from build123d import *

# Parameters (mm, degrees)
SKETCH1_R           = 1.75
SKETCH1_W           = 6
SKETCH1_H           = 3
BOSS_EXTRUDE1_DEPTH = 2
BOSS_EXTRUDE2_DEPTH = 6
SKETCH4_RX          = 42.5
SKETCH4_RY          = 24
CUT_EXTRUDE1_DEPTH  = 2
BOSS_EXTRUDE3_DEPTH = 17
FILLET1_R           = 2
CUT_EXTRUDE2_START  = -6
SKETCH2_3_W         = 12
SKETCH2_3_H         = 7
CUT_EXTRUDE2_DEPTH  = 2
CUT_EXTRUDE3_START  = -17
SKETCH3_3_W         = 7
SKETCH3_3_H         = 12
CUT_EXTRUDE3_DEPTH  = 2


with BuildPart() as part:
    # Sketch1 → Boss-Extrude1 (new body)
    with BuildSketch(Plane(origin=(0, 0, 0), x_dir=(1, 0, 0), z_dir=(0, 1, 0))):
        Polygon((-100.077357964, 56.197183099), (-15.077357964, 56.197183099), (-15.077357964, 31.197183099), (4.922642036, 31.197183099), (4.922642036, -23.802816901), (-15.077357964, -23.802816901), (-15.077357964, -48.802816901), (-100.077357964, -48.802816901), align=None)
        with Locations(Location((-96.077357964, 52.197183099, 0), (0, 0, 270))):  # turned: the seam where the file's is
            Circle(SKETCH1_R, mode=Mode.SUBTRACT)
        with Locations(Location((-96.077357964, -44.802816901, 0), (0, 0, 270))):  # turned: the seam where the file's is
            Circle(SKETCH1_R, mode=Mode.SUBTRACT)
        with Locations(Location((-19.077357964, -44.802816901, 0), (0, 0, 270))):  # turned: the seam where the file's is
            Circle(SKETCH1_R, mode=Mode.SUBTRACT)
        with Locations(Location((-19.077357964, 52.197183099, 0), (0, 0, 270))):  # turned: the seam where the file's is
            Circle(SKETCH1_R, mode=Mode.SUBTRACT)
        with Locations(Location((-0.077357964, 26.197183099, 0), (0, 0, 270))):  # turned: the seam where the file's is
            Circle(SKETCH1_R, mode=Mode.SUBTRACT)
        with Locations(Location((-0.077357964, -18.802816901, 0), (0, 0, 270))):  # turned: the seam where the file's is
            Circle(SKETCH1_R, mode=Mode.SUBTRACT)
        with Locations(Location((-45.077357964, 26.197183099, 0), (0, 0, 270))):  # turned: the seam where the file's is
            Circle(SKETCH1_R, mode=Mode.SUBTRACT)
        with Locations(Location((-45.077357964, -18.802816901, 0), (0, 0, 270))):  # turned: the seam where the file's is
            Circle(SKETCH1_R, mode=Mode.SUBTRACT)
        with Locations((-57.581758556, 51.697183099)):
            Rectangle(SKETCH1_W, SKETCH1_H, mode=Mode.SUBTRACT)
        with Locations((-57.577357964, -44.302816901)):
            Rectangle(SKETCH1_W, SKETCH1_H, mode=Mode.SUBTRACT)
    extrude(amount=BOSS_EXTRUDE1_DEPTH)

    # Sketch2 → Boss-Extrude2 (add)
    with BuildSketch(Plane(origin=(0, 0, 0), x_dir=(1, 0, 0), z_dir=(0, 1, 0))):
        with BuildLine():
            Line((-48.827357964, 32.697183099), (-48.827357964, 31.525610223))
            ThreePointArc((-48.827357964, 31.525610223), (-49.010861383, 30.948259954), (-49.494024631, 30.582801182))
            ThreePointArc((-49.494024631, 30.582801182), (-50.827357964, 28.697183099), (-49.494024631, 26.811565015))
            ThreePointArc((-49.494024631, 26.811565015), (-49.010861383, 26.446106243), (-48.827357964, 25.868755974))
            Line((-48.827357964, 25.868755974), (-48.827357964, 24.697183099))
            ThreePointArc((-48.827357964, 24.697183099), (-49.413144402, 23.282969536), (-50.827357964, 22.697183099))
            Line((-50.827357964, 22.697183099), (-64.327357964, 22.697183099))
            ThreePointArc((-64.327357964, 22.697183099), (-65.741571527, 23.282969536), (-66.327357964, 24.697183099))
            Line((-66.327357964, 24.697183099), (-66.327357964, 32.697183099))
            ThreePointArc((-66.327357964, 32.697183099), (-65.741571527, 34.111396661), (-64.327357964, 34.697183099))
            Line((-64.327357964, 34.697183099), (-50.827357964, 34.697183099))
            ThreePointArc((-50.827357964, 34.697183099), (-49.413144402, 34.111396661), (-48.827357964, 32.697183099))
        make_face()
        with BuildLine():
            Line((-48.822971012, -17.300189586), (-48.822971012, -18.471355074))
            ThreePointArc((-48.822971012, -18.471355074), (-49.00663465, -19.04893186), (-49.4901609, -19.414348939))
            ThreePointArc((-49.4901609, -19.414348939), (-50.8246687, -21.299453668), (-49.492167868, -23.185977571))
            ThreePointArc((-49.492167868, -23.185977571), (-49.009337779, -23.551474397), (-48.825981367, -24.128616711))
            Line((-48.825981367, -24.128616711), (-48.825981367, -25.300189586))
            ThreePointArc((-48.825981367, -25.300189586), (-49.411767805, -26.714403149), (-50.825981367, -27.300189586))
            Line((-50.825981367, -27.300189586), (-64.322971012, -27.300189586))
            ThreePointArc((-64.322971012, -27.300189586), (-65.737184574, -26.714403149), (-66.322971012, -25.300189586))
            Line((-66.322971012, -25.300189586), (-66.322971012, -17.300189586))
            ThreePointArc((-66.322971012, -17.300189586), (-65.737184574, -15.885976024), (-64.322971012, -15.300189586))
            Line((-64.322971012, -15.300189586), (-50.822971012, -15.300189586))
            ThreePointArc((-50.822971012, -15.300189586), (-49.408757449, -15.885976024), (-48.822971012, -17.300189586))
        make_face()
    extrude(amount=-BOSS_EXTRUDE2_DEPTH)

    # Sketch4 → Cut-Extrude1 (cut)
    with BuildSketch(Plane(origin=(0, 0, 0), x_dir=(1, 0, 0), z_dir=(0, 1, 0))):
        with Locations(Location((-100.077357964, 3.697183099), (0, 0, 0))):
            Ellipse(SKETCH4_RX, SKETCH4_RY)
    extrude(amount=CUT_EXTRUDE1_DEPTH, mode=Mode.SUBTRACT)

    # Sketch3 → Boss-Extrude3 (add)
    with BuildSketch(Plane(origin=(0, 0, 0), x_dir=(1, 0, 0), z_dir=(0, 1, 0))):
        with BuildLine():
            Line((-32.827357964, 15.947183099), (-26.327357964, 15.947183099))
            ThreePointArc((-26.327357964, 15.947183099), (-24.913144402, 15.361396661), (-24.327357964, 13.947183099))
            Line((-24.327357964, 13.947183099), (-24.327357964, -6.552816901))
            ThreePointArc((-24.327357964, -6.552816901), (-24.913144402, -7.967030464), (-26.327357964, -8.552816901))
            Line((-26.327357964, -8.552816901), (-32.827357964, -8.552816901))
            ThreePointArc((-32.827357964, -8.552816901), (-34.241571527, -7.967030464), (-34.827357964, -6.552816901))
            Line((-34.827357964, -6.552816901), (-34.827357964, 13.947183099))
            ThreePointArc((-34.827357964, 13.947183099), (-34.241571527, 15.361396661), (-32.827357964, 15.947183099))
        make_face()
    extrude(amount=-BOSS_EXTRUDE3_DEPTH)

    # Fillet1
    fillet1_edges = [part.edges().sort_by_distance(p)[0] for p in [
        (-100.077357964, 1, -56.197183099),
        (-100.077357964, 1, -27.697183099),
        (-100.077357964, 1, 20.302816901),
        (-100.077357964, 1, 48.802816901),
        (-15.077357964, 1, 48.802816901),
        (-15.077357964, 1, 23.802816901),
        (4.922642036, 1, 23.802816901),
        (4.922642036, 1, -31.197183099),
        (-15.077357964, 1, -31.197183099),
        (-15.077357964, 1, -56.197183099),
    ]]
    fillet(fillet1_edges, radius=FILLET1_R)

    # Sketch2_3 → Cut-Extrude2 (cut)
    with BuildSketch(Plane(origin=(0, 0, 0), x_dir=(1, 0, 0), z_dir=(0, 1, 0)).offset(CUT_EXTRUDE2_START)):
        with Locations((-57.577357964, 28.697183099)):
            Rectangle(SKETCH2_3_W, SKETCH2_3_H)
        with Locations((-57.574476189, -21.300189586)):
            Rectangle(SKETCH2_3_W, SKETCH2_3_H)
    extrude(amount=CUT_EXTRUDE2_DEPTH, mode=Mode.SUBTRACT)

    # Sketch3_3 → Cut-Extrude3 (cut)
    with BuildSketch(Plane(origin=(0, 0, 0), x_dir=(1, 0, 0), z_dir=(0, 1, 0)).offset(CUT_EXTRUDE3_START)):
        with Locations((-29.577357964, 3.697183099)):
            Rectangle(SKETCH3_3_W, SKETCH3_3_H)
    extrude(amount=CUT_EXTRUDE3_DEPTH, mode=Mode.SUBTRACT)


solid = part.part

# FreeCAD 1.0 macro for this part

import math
import FreeCAD as App
import Part
import Sketcher
from FreeCAD import Vector
Q = App.Units.Quantity


def edges_at(feature, points):
    """Names of the edges that pass closest to the given points."""
    edges = feature.Shape.Edges
    near = lambda p: min(range(len(edges)), key=lambda i: edges[i].distToShape(Part.Vertex(*p))[0])
    return sorted({f"Edge{near(p) + 1}" for p in points})


def add_polygon(sketch, points):
    """Adds a closed chain of lines whose ends are joined by coincident constraints."""
    first, n = sketch.GeometryCount, len(points)
    for a, b in zip(points, points[1:] + points[:1]):
        sketch.addGeometry(Part.LineSegment(App.Vector(*a, 0), App.Vector(*b, 0)), False)
    for i in range(n):
        sketch.addConstraint(Sketcher.Constraint("Coincident", first + i, 2, first + (i + 1) % n, 1))

doc = App.newDocument("Part")
params = doc.addObject("Spreadsheet::Sheet", "Params")
for row, (alias, value) in enumerate([
    ("sketch1_diameter", "3.5 mm"),
    ("sketch1_width", "85 mm"),
    ("sketch1_width2", "20 mm"),
    ("sketch1_width3", "6 mm"),
    ("sketch1_height", "105 mm"),
    ("pad1_length", "2 mm"),
    ("sketch2_radius", "2 mm"),
    ("sketch2_radius2", "1 mm"),
    ("sketch2_height", "8 mm"),
    ("sketch2_width", "13.5 mm"),
    ("pad2_length", "6 mm"),
    ("pocket1_length", "2 mm"),
    ("sketch4_radius", "2 mm"),
    ("sketch4_width", "6.5 mm"),
    ("sketch4_height", "20.5 mm"),
    ("pad3_length", "17 mm"),
    ("fillet_radius", "2 mm"),
    ("sketch5_width", "12 mm"),
    ("sketch5_height", "7 mm"),
    ("pocket2_length", "2 mm"),
    ("sketch6_width", "7 mm"),
    ("sketch6_height", "12 mm"),
    ("pocket3_length", "2 mm"),
], start=1):
    params.set(f"A{row}", alias)
    params.set(f"B{row}", "=" + value)
    params.setAlias(f"B{row}", alias)

body = doc.addObject("PartDesign::Body", "Body")

# Sketch on XZ plane
sketch1 = body.newObject("Sketcher::SketchObject", "Sketch")
sketch1.AttachmentSupport = (doc.getObject("XZ_Plane"), [""])
sketch1.MapMode = "FlatFace"
add_polygon(sketch1, [(-15.077358, -56.197183), (-100.077358, -56.197183), (-100.077358, 48.802817), (-15.077358, 48.802817), (-15.077358, 23.802817), (4.922642, 23.802817), (4.922642, -31.197183), (-15.077358, -31.197183)])  # lines 0-7
sketch1.addGeometry(Part.Circle(Vector(-19.077358, 44.802817, 0), Vector(0, 0, 1), 1.75), False)  # 8
sketch1.addGeometry(Part.Circle(Vector(-0.077358, 18.802817, 0), Vector(0, 0, 1), 1.75), False)  # 9
sketch1.addGeometry(Part.Circle(Vector(-45.077358, 18.802817, 0), Vector(0, 0, 1), 1.75), False)  # 10
add_polygon(sketch1, [(-60.577358, 45.802817), (-60.577358, 42.802817), (-54.577358, 42.802817), (-54.577358, 45.802817)])  # lines 11-14
sketch1.addGeometry(Part.Circle(Vector(-96.077358, 44.802817, 0), Vector(0, 0, 1), 1.75), False)  # 15
sketch1.addGeometry(Part.Circle(Vector(-0.077358, -26.197183, 0), Vector(0, 0, 1), 1.75), False)  # 16
sketch1.addGeometry(Part.Circle(Vector(-45.077358, -26.197183, 0), Vector(0, 0, 1), 1.75), False)  # 17
sketch1.addGeometry(Part.Circle(Vector(-19.077358, -52.197183, 0), Vector(0, 0, 1), 1.75), False)  # 18
add_polygon(sketch1, [(-60.581759, -50.197183), (-60.581759, -53.197183), (-54.581759, -53.197183), (-54.581759, -50.197183)])  # lines 19-22
sketch1.addGeometry(Part.Circle(Vector(-96.077358, -52.197183, 0), Vector(0, 0, 1), 1.75), False)  # 23
sketch1.addConstraint(Sketcher.Constraint("Horizontal", 0))
sketch1.addConstraint(Sketcher.Constraint("Vertical", 1))
sketch1.addConstraint(Sketcher.Constraint("Horizontal", 2))
sketch1.addConstraint(Sketcher.Constraint("Vertical", 3))
sketch1.addConstraint(Sketcher.Constraint("Horizontal", 4))
sketch1.addConstraint(Sketcher.Constraint("Vertical", 5))
sketch1.addConstraint(Sketcher.Constraint("Horizontal", 6))
sketch1.addConstraint(Sketcher.Constraint("Vertical", 7))
sketch1.addConstraint(Sketcher.Constraint("Vertical", 11))
sketch1.addConstraint(Sketcher.Constraint("Horizontal", 12))
sketch1.addConstraint(Sketcher.Constraint("Vertical", 13))
sketch1.addConstraint(Sketcher.Constraint("Horizontal", 14))
sketch1.addConstraint(Sketcher.Constraint("Vertical", 19))
sketch1.addConstraint(Sketcher.Constraint("Horizontal", 20))
sketch1.addConstraint(Sketcher.Constraint("Vertical", 21))
sketch1.addConstraint(Sketcher.Constraint("Horizontal", 22))
sketch1.addConstraint(Sketcher.Constraint("Equal", 8, 9))
sketch1.addConstraint(Sketcher.Constraint("Equal", 9, 10))
sketch1.addConstraint(Sketcher.Constraint("Equal", 10, 15))
sketch1.addConstraint(Sketcher.Constraint("Equal", 15, 16))
sketch1.addConstraint(Sketcher.Constraint("Equal", 16, 17))
sketch1.addConstraint(Sketcher.Constraint("Equal", 17, 18))
sketch1.addConstraint(Sketcher.Constraint("Equal", 18, 23))
sketch1.addConstraint(Sketcher.Constraint("Horizontal", 9, 3, 10, 3))
sketch1.addConstraint(Sketcher.Constraint("Horizontal", 8, 3, 15, 3))
sketch1.addConstraint(Sketcher.Constraint("Horizontal", 16, 3, 17, 3))
sketch1.addConstraint(Sketcher.Constraint("Horizontal", 18, 3, 23, 3))
sketch1.addConstraint(Sketcher.Constraint("Vertical", 9, 3, 16, 3))
sketch1.addConstraint(Sketcher.Constraint("Vertical", 10, 3, 17, 3))
sketch1.addConstraint(Sketcher.Constraint("Vertical", 8, 3, 18, 3))
sketch1.addConstraint(Sketcher.Constraint("Vertical", 15, 3, 23, 3))
sketch1.addConstraint(Sketcher.Constraint("Vertical", 3, 2, 6, 2))
sketch1.addConstraint(Sketcher.Constraint("Equal", 14, 20))
sketch1.addConstraint(Sketcher.Constraint("Equal", 3, 7))
sketch1.addConstraint(Sketcher.Constraint("Equal", 13, 19))
sketch1.addConstraint(Sketcher.Constraint("Diameter", 8, Q("3.5 mm")))
sketch1.addConstraint(Sketcher.Constraint("DistanceX", 0, 2, 0, 1, Q("85 mm")))
sketch1.addConstraint(Sketcher.Constraint("DistanceX", 4, 1, 4, 2, Q("20 mm")))
sketch1.addConstraint(Sketcher.Constraint("DistanceX", 12, 1, 12, 2, Q("6 mm")))
sketch1.addConstraint(Sketcher.Constraint("DistanceY", 1, 1, 1, 2, Q("105 mm")))
sketch1.addConstraint(Sketcher.Constraint("DistanceY", 3, 2, 3, 1, Q("25 mm")))
sketch1.addConstraint(Sketcher.Constraint("DistanceY", 11, 2, 11, 1, Q("3 mm")))
sketch1.addConstraint(Sketcher.Constraint("DistanceX", 8, 3, 9, 3, Q("19 mm")))
sketch1.addConstraint(Sketcher.Constraint("DistanceY", 9, 3, 8, 3, Q("26 mm")))
sketch1.addConstraint(Sketcher.Constraint("DistanceX", 10, 3, 8, 3, Q("26 mm")))
sketch1.addConstraint(Sketcher.Constraint("DistanceX", 15, 3, 10, 3, Q("51 mm")))
sketch1.addConstraint(Sketcher.Constraint("DistanceY", 16, 3, 9, 3, Q("45 mm")))
sketch1.addConstraint(Sketcher.Constraint("DistanceY", 18, 3, 16, 3, Q("26 mm")))
sketch1.addConstraint(Sketcher.Constraint("DistanceX", 0, 2, 23, 3, Q("4 mm")))
sketch1.addConstraint(Sketcher.Constraint("DistanceY", 0, 2, 23, 3, Q("4 mm")))
sketch1.addConstraint(Sketcher.Constraint("DistanceY", 10, 3, 11, 2, Q("24 mm")))
sketch1.addConstraint(Sketcher.Constraint("DistanceY", 19, 2, 17, 3, Q("27 mm")))
sketch1.addConstraint(Sketcher.Constraint("DistanceX", 11, 2, 10, 3, Q("15.5 mm")))
sketch1.addConstraint(Sketcher.Constraint("DistanceX", 19, 2, 17, 3, Q("15.504401 mm")))
sketch1.addConstraint(Sketcher.Constraint("DistanceX", 19, 2, -1, 1, Q("60.581759 mm")))
sketch1.addConstraint(Sketcher.Constraint("DistanceY", -1, 1, 8, 3, Q("44.802817 mm")))
sketch1.setExpression("Constraints[51]", "Params.sketch1_diameter")
sketch1.setExpression("Constraints[52]", "Params.sketch1_width")
sketch1.setExpression("Constraints[53]", "Params.sketch1_width2")
sketch1.setExpression("Constraints[54]", "Params.sketch1_width3")
sketch1.setExpression("Constraints[55]", "Params.sketch1_height")
pad1 = body.newObject("PartDesign::Pad", "Pad")
pad1.Profile = sketch1
pad1.setExpression("Length", "Params.pad1_length")
pad1.Reversed = True

# Sketch on XZ plane
sketch2 = body.newObject("Sketcher::SketchObject", "Sketch001")
sketch2.AttachmentSupport = (doc.getObject("XZ_Plane"), [""])
sketch2.MapMode = "FlatFace"
sketch2.addGeometry(Part.LineSegment(Vector(-48.827358, -31.52561, 0), Vector(-48.827358, -32.697183, 0)), False)
sketch2.addGeometry(Part.ArcOfCircle(Part.Circle(Vector(-50.827358, -32.697183, 0), Vector(0, 0, 1), 2), math.radians(-90), math.radians(0)), False)
sketch2.addGeometry(Part.LineSegment(Vector(-50.827358, -34.697183, 0), Vector(-64.327358, -34.697183, 0)), False)
sketch2.addGeometry(Part.ArcOfCircle(Part.Circle(Vector(-64.327358, -32.697183, 0), Vector(0, 0, 1), 2), math.radians(180), math.radians(270)), False)
sketch2.addGeometry(Part.LineSegment(Vector(-66.327358, -32.697183, 0), Vector(-66.327358, -24.697183, 0)), False)
sketch2.addGeometry(Part.ArcOfCircle(Part.Circle(Vector(-64.327358, -24.697183, 0), Vector(0, 0, 1), 2), math.radians(90), math.radians(180)), False)
sketch2.addGeometry(Part.LineSegment(Vector(-64.327358, -22.697183, 0), Vector(-50.827358, -22.697183, 0)), False)
sketch2.addGeometry(Part.ArcOfCircle(Part.Circle(Vector(-50.827358, -24.697183, 0), Vector(0, 0, 1), 2), math.radians(0), math.radians(90)), False)
sketch2.addGeometry(Part.LineSegment(Vector(-48.827358, -24.697183, 0), Vector(-48.827358, -25.868756, 0)), False)
sketch2.addGeometry(Part.ArcOfCircle(Part.Circle(Vector(-49.827358, -25.868756, 0), Vector(0, 0, 1), 1), math.radians(-70.528779), math.radians(0)), False)
sketch2.addGeometry(Part.ArcOfCircle(Part.Circle(Vector(-48.827358, -28.697183, 0), Vector(0, 0, 1), 2), math.radians(109.471221), math.radians(250.528779)), False)
sketch2.addGeometry(Part.ArcOfCircle(Part.Circle(Vector(-49.827358, -31.52561, 0), Vector(0, 0, 1), 1), math.radians(0), math.radians(70.528779)), False)
sketch2.addGeometry(Part.LineSegment(Vector(-48.822971, 18.471355, 0), Vector(-48.822971, 17.30019, 0)), False)
sketch2.addGeometry(Part.ArcOfCircle(Part.Circle(Vector(-50.822971, 17.30019, 0), Vector(0, 0, 1), 2), math.radians(-90), math.radians(0)), False)
sketch2.addGeometry(Part.LineSegment(Vector(-50.822971, 15.30019, 0), Vector(-64.322971, 15.30019, 0)), False)
sketch2.addGeometry(Part.ArcOfCircle(Part.Circle(Vector(-64.322971, 17.30019, 0), Vector(0, 0, 1), 2), math.radians(-180), math.radians(-90)), False)
sketch2.addGeometry(Part.LineSegment(Vector(-66.322971, 17.30019, 0), Vector(-66.322971, 25.30019, 0)), False)
sketch2.addGeometry(Part.ArcOfCircle(Part.Circle(Vector(-64.322971, 25.30019, 0), Vector(0, 0, 1), 2), math.radians(90), math.radians(180)), False)
sketch2.addGeometry(Part.LineSegment(Vector(-64.322971, 27.30019, 0), Vector(-50.825981, 27.30019, 0)), False)
sketch2.addGeometry(Part.ArcOfCircle(Part.Circle(Vector(-50.825981, 25.30019, 0), Vector(0, 0, 1), 2), math.radians(0), math.radians(90)), False)
sketch2.addGeometry(Part.LineSegment(Vector(-48.825981, 25.30019, 0), Vector(-48.825981, 24.128617, 0)), False)
sketch2.addGeometry(Part.ArcOfCircle(Part.Circle(Vector(-49.825981, 24.128617, 0), Vector(0, 0, 1), 1), math.radians(-70.499596), math.radians(0)), False)
sketch2.addGeometry(Part.ArcOfCircle(Part.Circle(Vector(-48.824477, 21.300518, 0), Vector(0, 0, 1), 2.000192), math.radians(109.500404), math.radians(250.560573)), False)
sketch2.addGeometry(Part.ArcOfCircle(Part.Circle(Vector(-49.822971, 18.471355, 0), Vector(0, 0, 1), 1), math.radians(0), math.radians(70.560573)), False)
sketch2.addConstraint(Sketcher.Constraint("Tangent", 0, 2, 1, 2))
sketch2.addConstraint(Sketcher.Constraint("Tangent", 1, 1, 2, 1))
sketch2.addConstraint(Sketcher.Constraint("Tangent", 2, 2, 3, 2))
sketch2.addConstraint(Sketcher.Constraint("Tangent", 3, 1, 4, 1))
sketch2.addConstraint(Sketcher.Constraint("Tangent", 4, 2, 5, 2))
sketch2.addConstraint(Sketcher.Constraint("Tangent", 5, 1, 6, 1))
sketch2.addConstraint(Sketcher.Constraint("Tangent", 6, 2, 7, 2))
sketch2.addConstraint(Sketcher.Constraint("Tangent", 7, 1, 8, 1))
sketch2.addConstraint(Sketcher.Constraint("Tangent", 8, 2, 9, 2))
sketch2.addConstraint(Sketcher.Constraint("Tangent", 9, 1, 10, 1))
sketch2.addConstraint(Sketcher.Constraint("Tangent", 10, 2, 11, 2))
sketch2.addConstraint(Sketcher.Constraint("Tangent", 11, 1, 0, 1))
sketch2.addConstraint(Sketcher.Constraint("Tangent", 12, 2, 13, 2))
sketch2.addConstraint(Sketcher.Constraint("Tangent", 13, 1, 14, 1))
sketch2.addConstraint(Sketcher.Constraint("Tangent", 14, 2, 15, 2))
sketch2.addConstraint(Sketcher.Constraint("Tangent", 15, 1, 16, 1))
sketch2.addConstraint(Sketcher.Constraint("Tangent", 16, 2, 17, 2))
sketch2.addConstraint(Sketcher.Constraint("Tangent", 17, 1, 18, 1))
sketch2.addConstraint(Sketcher.Constraint("Tangent", 18, 2, 19, 2))
sketch2.addConstraint(Sketcher.Constraint("Tangent", 19, 1, 20, 1))
sketch2.addConstraint(Sketcher.Constraint("Tangent", 20, 2, 21, 2))
sketch2.addConstraint(Sketcher.Constraint("Tangent", 21, 1, 22, 1))
sketch2.addConstraint(Sketcher.Constraint("Tangent", 22, 2, 23, 2))
sketch2.addConstraint(Sketcher.Constraint("Tangent", 23, 1, 12, 1))
sketch2.addConstraint(Sketcher.Constraint("Vertical", 0))
sketch2.addConstraint(Sketcher.Constraint("Horizontal", 2))
sketch2.addConstraint(Sketcher.Constraint("Vertical", 4))
sketch2.addConstraint(Sketcher.Constraint("Horizontal", 6))
sketch2.addConstraint(Sketcher.Constraint("Vertical", 8))
sketch2.addConstraint(Sketcher.Constraint("Vertical", 12))
sketch2.addConstraint(Sketcher.Constraint("Horizontal", 14))
sketch2.addConstraint(Sketcher.Constraint("Vertical", 16))
sketch2.addConstraint(Sketcher.Constraint("Horizontal", 18))
sketch2.addConstraint(Sketcher.Constraint("Vertical", 20))
sketch2.addConstraint(Sketcher.Constraint("Equal", 1, 3))
sketch2.addConstraint(Sketcher.Constraint("Equal", 3, 5))
sketch2.addConstraint(Sketcher.Constraint("Equal", 5, 7))
sketch2.addConstraint(Sketcher.Constraint("Equal", 7, 10))
sketch2.addConstraint(Sketcher.Constraint("Equal", 9, 11))
sketch2.addConstraint(Sketcher.Constraint("Equal", 10, 13))
sketch2.addConstraint(Sketcher.Constraint("Equal", 13, 15))
sketch2.addConstraint(Sketcher.Constraint("Equal", 15, 17))
sketch2.addConstraint(Sketcher.Constraint("Equal", 17, 19))
sketch2.addConstraint(Sketcher.Constraint("Equal", 11, 21))
sketch2.addConstraint(Sketcher.Constraint("Equal", 21, 23))
sketch2.addConstraint(Sketcher.Constraint("Vertical", 1, 3, 7, 3))
sketch2.addConstraint(Sketcher.Constraint("Vertical", 10, 3, 0, 2))
sketch2.addConstraint(Sketcher.Constraint("Equal", 6, 14))
sketch2.addConstraint(Sketcher.Constraint("Equal", 0, 8))
sketch2.addConstraint(Sketcher.Constraint("Equal", 4, 16))
sketch2.addConstraint(Sketcher.Constraint("Equal", 8, 20))
sketch2.addConstraint(Sketcher.Constraint("Radius", 1, Q("2 mm")))
sketch2.addConstraint(Sketcher.Constraint("Radius", 9, Q("1 mm")))
sketch2.addConstraint(Sketcher.Constraint("DistanceY", 4, 1, 4, 2, Q("8 mm")))
sketch2.addConstraint(Sketcher.Constraint("DistanceX", 2, 2, 2, 1, Q("13.5 mm")))
sketch2.addConstraint(Sketcher.Constraint("Radius", 22, Q("2.000192 mm")))
sketch2.addConstraint(Sketcher.Constraint("DistanceX", 18, 1, 18, 2, Q("13.49699 mm")))
sketch2.addConstraint(Sketcher.Constraint("DistanceY", 10, 2, -1, 1, Q("30.582801 mm")))
sketch2.addConstraint(Sketcher.Constraint("DistanceY", 11, 3, 13, 3, Q("48.8258 mm")))
sketch2.addConstraint(Sketcher.Constraint("DistanceY", 22, 3, 21, 3, Q("2.828099 mm")))
sketch2.addConstraint(Sketcher.Constraint("DistanceX", 13, 3, -1, 1, Q("50.822971 mm")))
sketch2.addConstraint(Sketcher.Constraint("DistanceX", 1, 3, -1, 1, Q("50.827358 mm")))
sketch2.setExpression("Constraints[51]", "Params.sketch2_radius")
sketch2.setExpression("Constraints[52]", "Params.sketch2_radius2")
sketch2.setExpression("Constraints[53]", "Params.sketch2_height")
sketch2.setExpression("Constraints[54]", "Params.sketch2_width")
pad2 = body.newObject("PartDesign::Pad", "Pad001")
pad2.Profile = sketch2
pad2.setExpression("Length", "Params.pad2_length")

# Sketch on XZ plane
sketch3 = body.newObject("Sketcher::SketchObject", "Sketch002")
sketch3.AttachmentSupport = (doc.getObject("XZ_Plane"), [""])
sketch3.MapMode = "FlatFace"
sketch3.addGeometry(Part.Ellipse(Vector(-57.577358, -3.697183, 0), Vector(-100.077358, 20.302817, 0), Vector(-100.077358, -3.697183, 0)), False)
sketch3.addConstraint(Sketcher.Constraint("Block", 0))
pocket1 = body.newObject("PartDesign::Pocket", "Pocket")
pocket1.Profile = sketch3
pocket1.setExpression("Length", "Params.pocket1_length")

# Sketch on XZ plane
sketch4 = body.newObject("Sketcher::SketchObject", "Sketch003")
sketch4.AttachmentSupport = (doc.getObject("XZ_Plane"), [""])
sketch4.MapMode = "FlatFace"
sketch4.addGeometry(Part.LineSegment(Vector(-26.327358, -15.947183, 0), Vector(-32.827358, -15.947183, 0)), False)
sketch4.addGeometry(Part.ArcOfCircle(Part.Circle(Vector(-32.827358, -13.947183, 0), Vector(0, 0, 1), 2), math.radians(180), math.radians(270)), False)
sketch4.addGeometry(Part.LineSegment(Vector(-34.827358, -13.947183, 0), Vector(-34.827358, 6.552817, 0)), False)
sketch4.addGeometry(Part.ArcOfCircle(Part.Circle(Vector(-32.827358, 6.552817, 0), Vector(0, 0, 1), 2), math.radians(90), math.radians(180)), False)
sketch4.addGeometry(Part.LineSegment(Vector(-32.827358, 8.552817, 0), Vector(-26.327358, 8.552817, 0)), False)
sketch4.addGeometry(Part.ArcOfCircle(Part.Circle(Vector(-26.327358, 6.552817, 0), Vector(0, 0, 1), 2), math.radians(0), math.radians(90)), False)
sketch4.addGeometry(Part.LineSegment(Vector(-24.327358, 6.552817, 0), Vector(-24.327358, -13.947183, 0)), False)
sketch4.addGeometry(Part.ArcOfCircle(Part.Circle(Vector(-26.327358, -13.947183, 0), Vector(0, 0, 1), 2), math.radians(-90), math.radians(0)), False)
sketch4.addConstraint(Sketcher.Constraint("Tangent", 0, 2, 1, 2))
sketch4.addConstraint(Sketcher.Constraint("Tangent", 1, 1, 2, 1))
sketch4.addConstraint(Sketcher.Constraint("Tangent", 2, 2, 3, 2))
sketch4.addConstraint(Sketcher.Constraint("Tangent", 3, 1, 4, 1))
sketch4.addConstraint(Sketcher.Constraint("Tangent", 4, 2, 5, 2))
sketch4.addConstraint(Sketcher.Constraint("Tangent", 5, 1, 6, 1))
sketch4.addConstraint(Sketcher.Constraint("Tangent", 6, 2, 7, 2))
sketch4.addConstraint(Sketcher.Constraint("Tangent", 7, 1, 0, 1))
sketch4.addConstraint(Sketcher.Constraint("Horizontal", 0))
sketch4.addConstraint(Sketcher.Constraint("Vertical", 2))
sketch4.addConstraint(Sketcher.Constraint("Horizontal", 4))
sketch4.addConstraint(Sketcher.Constraint("Vertical", 6))
sketch4.addConstraint(Sketcher.Constraint("Equal", 1, 3))
sketch4.addConstraint(Sketcher.Constraint("Equal", 3, 5))
sketch4.addConstraint(Sketcher.Constraint("Equal", 5, 7))
sketch4.addConstraint(Sketcher.Constraint("Radius", 1, Q("2 mm")))
sketch4.addConstraint(Sketcher.Constraint("DistanceX", 0, 2, 0, 1, Q("6.5 mm")))
sketch4.addConstraint(Sketcher.Constraint("DistanceY", 2, 1, 2, 2, Q("20.5 mm")))
sketch4.addConstraint(Sketcher.Constraint("DistanceX", 1, 3, -1, 1, Q("32.827358 mm")))
sketch4.addConstraint(Sketcher.Constraint("DistanceY", 1, 3, -1, 1, Q("13.947183 mm")))
sketch4.setExpression("Constraints[15]", "Params.sketch4_radius")
sketch4.setExpression("Constraints[16]", "Params.sketch4_width")
sketch4.setExpression("Constraints[17]", "Params.sketch4_height")
pad3 = body.newObject("PartDesign::Pad", "Pad002")
pad3.Profile = sketch4
pad3.setExpression("Length", "Params.pad3_length")
doc.recompute()

fillet = body.newObject("PartDesign::Fillet", "Fillet")
fillet.Base = (pad3, edges_at(pad3, [
    (-100.077, 1, -56.197),
    (-100.077, 1, -27.697),
    (-100.077, 1, 20.303),
    (-100.077, 1, 48.803),
    (-15.077, 1, 48.803),
    (-15.077, 1, 23.803),
    (4.923, 1, 23.803),
    (4.923, 1, -31.197),
    (-15.077, 1, -31.197),
    (-15.077, 1, -56.197),
]))
fillet.setExpression("Radius", "Params.fillet_radius")

# Sketch on XZ plane
sketch5 = body.newObject("Sketcher::SketchObject", "Sketch004")
sketch5.AttachmentSupport = (doc.getObject("XZ_Plane"), [""])
sketch5.MapMode = "FlatFace"
sketch5.AttachmentOffset = App.Placement(Vector(0, 0, 6), App.Rotation())
add_polygon(sketch5, [(-63.577358, -32.197183), (-63.577358, -25.197183), (-51.577358, -25.197183), (-51.577358, -32.197183)])  # lines 0-3
add_polygon(sketch5, [(-63.574476, 17.80019), (-63.574476, 24.80019), (-51.574476, 24.80019), (-51.574476, 17.80019)])  # lines 4-7
sketch5.addConstraint(Sketcher.Constraint("Vertical", 0))
sketch5.addConstraint(Sketcher.Constraint("Horizontal", 1))
sketch5.addConstraint(Sketcher.Constraint("Vertical", 2))
sketch5.addConstraint(Sketcher.Constraint("Horizontal", 3))
sketch5.addConstraint(Sketcher.Constraint("Vertical", 4))
sketch5.addConstraint(Sketcher.Constraint("Horizontal", 5))
sketch5.addConstraint(Sketcher.Constraint("Vertical", 6))
sketch5.addConstraint(Sketcher.Constraint("Horizontal", 7))
sketch5.addConstraint(Sketcher.Constraint("Equal", 3, 5))
sketch5.addConstraint(Sketcher.Constraint("Equal", 2, 4))
sketch5.addConstraint(Sketcher.Constraint("DistanceX", 1, 1, 1, 2, Q("12 mm")))
sketch5.addConstraint(Sketcher.Constraint("DistanceY", 0, 1, 0, 2, Q("7 mm")))
sketch5.addConstraint(Sketcher.Constraint("DistanceY", -1, 1, 4, 2, Q("24.80019 mm")))
sketch5.addConstraint(Sketcher.Constraint("DistanceX", 0, 2, 4, 2, Q("0.002882 mm")))
sketch5.addConstraint(Sketcher.Constraint("DistanceX", 0, 2, -1, 1, Q("63.577358 mm")))
sketch5.addConstraint(Sketcher.Constraint("DistanceY", 0, 2, -1, 1, Q("25.197183 mm")))
sketch5.setExpression("Constraints[18]", "Params.sketch5_width")
sketch5.setExpression("Constraints[19]", "Params.sketch5_height")
pocket2 = body.newObject("PartDesign::Pocket", "Pocket001")
pocket2.Profile = sketch5
pocket2.setExpression("Length", "Params.pocket2_length")

# Sketch on XZ plane
sketch6 = body.newObject("Sketcher::SketchObject", "Sketch005")
sketch6.AttachmentSupport = (doc.getObject("XZ_Plane"), [""])
sketch6.MapMode = "FlatFace"
sketch6.AttachmentOffset = App.Placement(Vector(0, 0, 17), App.Rotation())
add_polygon(sketch6, [(-33.077358, -9.697183), (-33.077358, 2.302817), (-26.077358, 2.302817), (-26.077358, -9.697183)])  # lines 0-3
sketch6.addConstraint(Sketcher.Constraint("Vertical", 0))
sketch6.addConstraint(Sketcher.Constraint("Horizontal", 1))
sketch6.addConstraint(Sketcher.Constraint("Vertical", 2))
sketch6.addConstraint(Sketcher.Constraint("Horizontal", 3))
sketch6.addConstraint(Sketcher.Constraint("DistanceX", 1, 1, 1, 2, Q("7 mm")))
sketch6.addConstraint(Sketcher.Constraint("DistanceY", 0, 1, 0, 2, Q("12 mm")))
sketch6.addConstraint(Sketcher.Constraint("DistanceX", 0, 2, -1, 1, Q("33.077358 mm")))
sketch6.addConstraint(Sketcher.Constraint("DistanceY", -1, 1, 0, 2, Q("2.302817 mm")))
sketch6.setExpression("Constraints[8]", "Params.sketch6_width")
sketch6.setExpression("Constraints[9]", "Params.sketch6_height")
pocket3 = body.newObject("PartDesign::Pocket", "Pocket002")
pocket3.Profile = sketch6
pocket3.setExpression("Length", "Params.pocket3_length")

doc.recompute()
